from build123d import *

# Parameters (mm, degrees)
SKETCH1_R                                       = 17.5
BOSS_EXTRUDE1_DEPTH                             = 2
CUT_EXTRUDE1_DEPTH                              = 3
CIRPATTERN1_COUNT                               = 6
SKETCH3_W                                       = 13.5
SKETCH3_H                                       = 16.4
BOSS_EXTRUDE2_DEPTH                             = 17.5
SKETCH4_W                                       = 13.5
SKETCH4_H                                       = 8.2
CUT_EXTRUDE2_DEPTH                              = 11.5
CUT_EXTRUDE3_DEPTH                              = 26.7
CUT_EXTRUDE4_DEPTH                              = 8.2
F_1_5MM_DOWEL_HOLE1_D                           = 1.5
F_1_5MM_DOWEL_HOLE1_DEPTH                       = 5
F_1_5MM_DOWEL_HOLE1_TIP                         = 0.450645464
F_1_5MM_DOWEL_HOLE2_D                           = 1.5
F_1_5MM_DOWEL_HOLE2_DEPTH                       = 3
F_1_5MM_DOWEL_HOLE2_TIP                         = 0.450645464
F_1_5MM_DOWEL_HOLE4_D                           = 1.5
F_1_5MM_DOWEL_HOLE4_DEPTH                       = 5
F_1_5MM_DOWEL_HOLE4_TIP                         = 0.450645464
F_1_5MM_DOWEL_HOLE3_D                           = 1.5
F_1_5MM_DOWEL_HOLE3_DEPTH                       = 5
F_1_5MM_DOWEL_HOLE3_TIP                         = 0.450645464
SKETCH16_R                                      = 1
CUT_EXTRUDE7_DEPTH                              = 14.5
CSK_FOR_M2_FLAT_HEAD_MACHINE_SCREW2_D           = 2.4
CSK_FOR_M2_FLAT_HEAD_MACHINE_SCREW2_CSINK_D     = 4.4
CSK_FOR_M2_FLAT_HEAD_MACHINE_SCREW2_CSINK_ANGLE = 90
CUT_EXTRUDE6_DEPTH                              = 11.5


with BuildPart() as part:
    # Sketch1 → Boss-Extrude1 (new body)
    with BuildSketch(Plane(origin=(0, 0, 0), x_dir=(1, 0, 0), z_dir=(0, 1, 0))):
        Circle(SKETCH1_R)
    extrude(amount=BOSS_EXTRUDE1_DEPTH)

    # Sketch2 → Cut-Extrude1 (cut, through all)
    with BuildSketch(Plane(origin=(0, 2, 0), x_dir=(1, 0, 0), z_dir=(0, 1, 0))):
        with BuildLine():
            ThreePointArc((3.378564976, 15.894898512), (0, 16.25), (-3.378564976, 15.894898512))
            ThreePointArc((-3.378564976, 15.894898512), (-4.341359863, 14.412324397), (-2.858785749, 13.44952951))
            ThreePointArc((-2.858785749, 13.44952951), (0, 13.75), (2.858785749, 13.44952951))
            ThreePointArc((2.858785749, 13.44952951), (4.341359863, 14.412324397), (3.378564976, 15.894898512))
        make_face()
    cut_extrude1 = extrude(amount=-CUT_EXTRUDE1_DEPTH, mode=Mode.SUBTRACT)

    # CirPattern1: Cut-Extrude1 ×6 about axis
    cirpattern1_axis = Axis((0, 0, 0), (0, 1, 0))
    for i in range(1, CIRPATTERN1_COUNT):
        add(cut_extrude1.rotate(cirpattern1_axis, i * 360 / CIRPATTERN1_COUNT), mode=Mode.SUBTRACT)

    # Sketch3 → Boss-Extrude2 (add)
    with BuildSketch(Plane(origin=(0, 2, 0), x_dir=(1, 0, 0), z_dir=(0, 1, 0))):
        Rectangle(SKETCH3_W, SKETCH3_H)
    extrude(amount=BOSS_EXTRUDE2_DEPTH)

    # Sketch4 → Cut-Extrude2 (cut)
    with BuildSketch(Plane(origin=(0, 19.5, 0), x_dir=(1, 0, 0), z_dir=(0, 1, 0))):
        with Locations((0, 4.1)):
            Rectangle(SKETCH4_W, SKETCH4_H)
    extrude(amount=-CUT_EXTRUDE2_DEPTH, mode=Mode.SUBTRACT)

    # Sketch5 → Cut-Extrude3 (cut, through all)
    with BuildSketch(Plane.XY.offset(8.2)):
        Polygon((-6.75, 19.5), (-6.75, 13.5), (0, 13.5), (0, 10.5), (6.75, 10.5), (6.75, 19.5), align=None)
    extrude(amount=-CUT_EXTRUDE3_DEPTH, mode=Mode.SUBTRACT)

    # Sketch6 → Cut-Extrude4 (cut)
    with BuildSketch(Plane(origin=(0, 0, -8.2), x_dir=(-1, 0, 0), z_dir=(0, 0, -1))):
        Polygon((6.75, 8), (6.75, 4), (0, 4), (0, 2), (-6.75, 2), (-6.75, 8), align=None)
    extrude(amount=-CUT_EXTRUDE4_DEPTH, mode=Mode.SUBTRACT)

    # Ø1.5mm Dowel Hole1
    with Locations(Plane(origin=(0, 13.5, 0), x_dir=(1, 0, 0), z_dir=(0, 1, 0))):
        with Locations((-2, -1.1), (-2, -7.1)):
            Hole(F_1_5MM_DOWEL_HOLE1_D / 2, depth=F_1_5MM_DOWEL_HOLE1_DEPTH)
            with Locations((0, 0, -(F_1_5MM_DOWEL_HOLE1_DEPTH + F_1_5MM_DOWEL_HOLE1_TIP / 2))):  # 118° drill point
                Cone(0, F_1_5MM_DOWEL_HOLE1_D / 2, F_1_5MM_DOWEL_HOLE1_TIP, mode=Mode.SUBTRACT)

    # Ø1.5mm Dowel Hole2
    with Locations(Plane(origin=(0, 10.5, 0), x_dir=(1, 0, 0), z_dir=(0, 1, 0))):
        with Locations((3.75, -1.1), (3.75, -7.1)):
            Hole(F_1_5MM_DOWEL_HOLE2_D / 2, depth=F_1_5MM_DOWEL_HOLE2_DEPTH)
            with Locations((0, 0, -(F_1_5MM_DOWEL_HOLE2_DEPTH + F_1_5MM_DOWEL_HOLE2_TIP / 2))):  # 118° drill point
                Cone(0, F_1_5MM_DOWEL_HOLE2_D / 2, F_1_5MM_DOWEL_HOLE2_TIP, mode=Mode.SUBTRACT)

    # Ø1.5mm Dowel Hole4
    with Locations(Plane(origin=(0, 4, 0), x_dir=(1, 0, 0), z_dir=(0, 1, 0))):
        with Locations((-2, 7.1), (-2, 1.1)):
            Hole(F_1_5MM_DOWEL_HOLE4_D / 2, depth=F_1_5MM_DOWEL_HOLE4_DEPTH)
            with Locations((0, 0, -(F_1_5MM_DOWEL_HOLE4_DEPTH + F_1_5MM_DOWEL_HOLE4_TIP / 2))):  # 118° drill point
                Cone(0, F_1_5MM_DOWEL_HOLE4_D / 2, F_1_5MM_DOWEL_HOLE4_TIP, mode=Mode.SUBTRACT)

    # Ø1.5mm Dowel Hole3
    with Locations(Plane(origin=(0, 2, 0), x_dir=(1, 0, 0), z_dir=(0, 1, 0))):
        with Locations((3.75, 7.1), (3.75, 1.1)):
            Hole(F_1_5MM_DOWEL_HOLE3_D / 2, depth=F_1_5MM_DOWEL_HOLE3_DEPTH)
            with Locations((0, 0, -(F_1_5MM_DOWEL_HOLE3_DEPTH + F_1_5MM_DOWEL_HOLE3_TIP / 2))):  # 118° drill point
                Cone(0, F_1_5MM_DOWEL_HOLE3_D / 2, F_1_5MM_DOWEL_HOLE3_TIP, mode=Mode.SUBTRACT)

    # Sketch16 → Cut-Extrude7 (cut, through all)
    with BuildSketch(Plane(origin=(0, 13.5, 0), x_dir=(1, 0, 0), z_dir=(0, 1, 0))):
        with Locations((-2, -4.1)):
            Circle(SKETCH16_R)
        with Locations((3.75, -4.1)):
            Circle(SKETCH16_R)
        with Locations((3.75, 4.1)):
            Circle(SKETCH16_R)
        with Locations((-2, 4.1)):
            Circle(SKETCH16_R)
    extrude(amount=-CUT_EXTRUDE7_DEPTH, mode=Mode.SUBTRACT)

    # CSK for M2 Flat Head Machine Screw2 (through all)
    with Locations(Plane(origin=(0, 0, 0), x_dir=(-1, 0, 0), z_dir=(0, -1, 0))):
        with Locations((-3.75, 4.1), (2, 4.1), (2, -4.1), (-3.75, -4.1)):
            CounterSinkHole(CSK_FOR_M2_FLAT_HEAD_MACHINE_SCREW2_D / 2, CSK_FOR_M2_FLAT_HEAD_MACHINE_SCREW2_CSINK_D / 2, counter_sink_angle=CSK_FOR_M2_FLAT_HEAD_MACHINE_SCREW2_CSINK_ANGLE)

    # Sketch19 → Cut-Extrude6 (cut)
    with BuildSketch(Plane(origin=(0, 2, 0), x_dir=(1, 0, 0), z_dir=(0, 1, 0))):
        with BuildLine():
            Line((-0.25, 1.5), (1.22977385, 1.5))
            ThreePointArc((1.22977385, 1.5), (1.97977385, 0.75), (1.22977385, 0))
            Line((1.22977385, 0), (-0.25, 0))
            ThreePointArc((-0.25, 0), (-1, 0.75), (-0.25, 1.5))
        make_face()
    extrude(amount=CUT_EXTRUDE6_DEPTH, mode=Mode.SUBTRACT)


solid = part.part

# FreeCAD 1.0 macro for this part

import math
import FreeCAD as App
import Part
import Sketcher

V = App.Vector
Q = App.Units.Quantity


def add_polygon(sketch, points):
    """Adds a closed chain of lines whose ends are joined by coincident constraints."""
    first, n = sketch.GeometryCount, len(points)
    for a, b in zip(points, points[1:] + points[:1]):
        sketch.addGeometry(Part.LineSegment(App.Vector(*a, 0), App.Vector(*b, 0)), False)
    for i in range(n):
        sketch.addConstraint(Sketcher.Constraint("Coincident", first + i, 2, first + (i + 1) % n, 1))

doc = App.newDocument("Part")
body = doc.addObject("PartDesign::Body", "Body")

# Sketch on XZ plane
sketch1 = body.newObject("Sketcher::SketchObject", "Sketch")
sketch1.AttachmentSupport = (doc.getObject("XZ_Plane"), [""])
sketch1.MapMode = "FlatFace"
sketch1.addGeometry(Part.Circle(V(0, 0, 0), V(0, 0, 1), 17.5), False)
sketch1.addConstraint(Sketcher.Constraint("Coincident", 0, 3, -1, 1))
sketch1.addConstraint(Sketcher.Constraint("Diameter", 0, Q("35 mm")))
pad1 = body.newObject("PartDesign::Pad", "Pad")
pad1.Profile = sketch1
pad1.Length = 2
pad1.Reversed = True

# Sketch on XZ plane
sketch2 = body.newObject("Sketcher::SketchObject", "Sketch001")
sketch2.AttachmentSupport = (doc.getObject("XZ_Plane"), [""])
sketch2.MapMode = "FlatFace"
sketch2.AttachmentOffset = App.Placement(V(0, 0, -2), App.Rotation())
sketch2.addGeometry(Part.ArcOfCircle(Part.Circle(V(0, 0, 0), V(0, 0, 1), 16.25), math.radians(-102), math.radians(-78)), False)
sketch2.addGeometry(Part.ArcOfCircle(Part.Circle(V(-3.118675, -14.672214, 0), V(0, 0, 1), 1.25), math.radians(78), math.radians(258)), False)
sketch2.addGeometry(Part.ArcOfCircle(Part.Circle(V(0, 0, 0), V(0, 0, 1), 13.75), math.radians(-102), math.radians(-78)), False)
sketch2.addGeometry(Part.ArcOfCircle(Part.Circle(V(3.118675, -14.672214, 0), V(0, 0, 1), 1.25), math.radians(-78), math.radians(102)), False)
sketch2.addConstraint(Sketcher.Constraint("Tangent", 0, 1, 1, 2))
sketch2.addConstraint(Sketcher.Constraint("Tangent", 1, 1, 2, 1))
sketch2.addConstraint(Sketcher.Constraint("Tangent", 2, 2, 3, 2))
sketch2.addConstraint(Sketcher.Constraint("Tangent", 3, 1, 0, 2))
sketch2.addConstraint(Sketcher.Constraint("Coincident", 0, 3, -1, 1))
sketch2.addConstraint(Sketcher.Constraint("Coincident", 2, 3, -1, 1))
sketch2.addConstraint(Sketcher.Constraint("Horizontal", 1, 3, 3, 3))
sketch2.addConstraint(Sketcher.Constraint("Radius", 0, Q("16.25 mm")))
sketch2.addConstraint(Sketcher.Constraint("Radius", 1, Q("1.25 mm")))
sketch2.addConstraint(Sketcher.Constraint("DistanceY", 0, 1, -1, 1, Q("15.894899 mm")))
pocket1 = body.newObject("PartDesign::Pocket", "Pocket")
pocket1.Profile = sketch2
pocket1.Type = "ThroughAll"
pocket1.Reversed = True
doc.recompute()

polarpattern = body.newObject("PartDesign::PolarPattern", "PolarPattern")
polarpattern.Originals = [pocket1]
polarpattern.Axis = (doc.getObject("Y_Axis"), [""])
polarpattern.Angle = 360
polarpattern.Occurrences = 6
body.Tip = polarpattern

# Sketch on XZ plane
sketch3 = body.newObject("Sketcher::SketchObject", "Sketch002")
sketch3.AttachmentSupport = (doc.getObject("XZ_Plane"), [""])
sketch3.MapMode = "FlatFace"
sketch3.AttachmentOffset = App.Placement(V(0, 0, -2), App.Rotation())
add_polygon(sketch3, [(-6.75, -8.2), (-6.75, 8.2), (6.75, 8.2), (6.75, -8.2)])  # lines 0-3
sketch3.addConstraint(Sketcher.Constraint("Vertical", 0))
sketch3.addConstraint(Sketcher.Constraint("Horizontal", 1))
sketch3.addConstraint(Sketcher.Constraint("Vertical", 2))
sketch3.addConstraint(Sketcher.Constraint("Horizontal", 3))
sketch3.addConstraint(Sketcher.Constraint("Symmetric", 0, 2, 2, 2, -1, 1))
sketch3.addConstraint(Sketcher.Constraint("DistanceX", 1, 1, 1, 2, Q("13.5 mm")))
sketch3.addConstraint(Sketcher.Constraint("DistanceY", 0, 1, 0, 2, Q("16.4 mm")))
pad2 = body.newObject("PartDesign::Pad", "Pad001")
pad2.Profile = sketch3
pad2.Length = 17.5
pad2.Reversed = True

# Sketch on XZ plane
sketch4 = body.newObject("Sketcher::SketchObject", "Sketch003")
sketch4.AttachmentSupport = (doc.getObject("XZ_Plane"), [""])
sketch4.MapMode = "FlatFace"
sketch4.AttachmentOffset = App.Placement(V(0, 0, -19.5), App.Rotation())
add_polygon(sketch4, [(-6.75, -8.2), (-6.75, 0), (6.75, 0), (6.75, -8.2)])  # lines 0-3
sketch4.addConstraint(Sketcher.Constraint("Vertical", 0))
sketch4.addConstraint(Sketcher.Constraint("Horizontal", 1))
sketch4.addConstraint(Sketcher.Constraint("Vertical", 2))
sketch4.addConstraint(Sketcher.Constraint("Horizontal", 3))
sketch4.addConstraint(Sketcher.Constraint("Symmetric", 0, 2, 1, 2, -1, 1))
sketch4.addConstraint(Sketcher.Constraint("DistanceX", 1, 1, 1, 2, Q("13.5 mm")))
sketch4.addConstraint(Sketcher.Constraint("DistanceY", 0, 1, 0, 2, Q("8.2 mm")))
pocket2 = body.newObject("PartDesign::Pocket", "Pocket001")
pocket2.Profile = sketch4
pocket2.Length = 11.5
pocket2.Reversed = True

# Sketch on XY plane
sketch5 = body.newObject("Sketcher::SketchObject", "Sketch004")
sketch5.AttachmentSupport = (doc.getObject("XY_Plane"), [""])
sketch5.MapMode = "FlatFace"
sketch5.AttachmentOffset = App.Placement(V(0, 0, 8.2), App.Rotation())
add_polygon(sketch5, [(-6.75, 19.5), (-6.75, 13.5), (0, 13.5), (0, 10.5), (6.75, 10.5), (6.75, 19.5)])  # lines 0-5
sketch5.addConstraint(Sketcher.Constraint("Vertical", 0))
sketch5.addConstraint(Sketcher.Constraint("Horizontal", 1))
sketch5.addConstraint(Sketcher.Constraint("Vertical", 2))
sketch5.addConstraint(Sketcher.Constraint("Horizontal", 3))
sketch5.addConstraint(Sketcher.Constraint("Vertical", 4))
sketch5.addConstraint(Sketcher.Constraint("Horizontal", 5))
sketch5.addConstraint(Sketcher.Constraint("PointOnObject", 1, 2, -2))
sketch5.addConstraint(Sketcher.Constraint("Equal", 1, 3))
sketch5.addConstraint(Sketcher.Constraint("DistanceY", 0, 2, 0, 1, Q("6 mm")))
sketch5.addConstraint(Sketcher.Constraint("DistanceY", 2, 2, 2, 1, Q("3 mm")))
sketch5.addConstraint(Sketcher.Constraint("DistanceX", 5, 2, 5, 1, Q("13.5 mm")))
sketch5.addConstraint(Sketcher.Constraint("DistanceY", -1, 1, 0, 2, Q("13.5 mm")))
pocket3 = body.newObject("PartDesign::Pocket", "Pocket002")
pocket3.Profile = sketch5
pocket3.Type = "ThroughAll"

# Sketch on XY plane
sketch6 = body.newObject("Sketcher::SketchObject", "Sketch005")
sketch6.AttachmentSupport = (doc.getObject("XY_Plane"), [""])
sketch6.MapMode = "FlatFace"
sketch6.AttachmentOffset = App.Placement(V(0, 0, -8.2), App.Rotation())
add_polygon(sketch6, [(-6.75, 4), (-6.75, 8), (6.75, 8), (6.75, 2), (0, 2), (0, 4)])  # lines 0-5
sketch6.addConstraint(Sketcher.Constraint("Vertical", 0))
sketch6.addConstraint(Sketcher.Constraint("Horizontal", 1))
sketch6.addConstraint(Sketcher.Constraint("Vertical", 2))
sketch6.addConstraint(Sketcher.Constraint("Horizontal", 3))
sketch6.addConstraint(Sketcher.Constraint("Vertical", 4))
sketch6.addConstraint(Sketcher.Constraint("Horizontal", 5))
sketch6.addConstraint(Sketcher.Constraint("PointOnObject", 3, 2, -2))
sketch6.addConstraint(Sketcher.Constraint("Equal", 3, 5))
sketch6.addConstraint(Sketcher.Constraint("DistanceY", 0, 1, 0, 2, Q("4 mm")))
sketch6.addConstraint(Sketcher.Constraint("DistanceY", 2, 2, 2, 1, Q("6 mm")))
sketch6.addConstraint(Sketcher.Constraint("DistanceX", 1, 1, 1, 2, Q("13.5 mm")))
sketch6.addConstraint(Sketcher.Constraint("DistanceY", -1, 1, 0, 2, Q("8 mm")))
pocket4 = body.newObject("PartDesign::Pocket", "Pocket003")
pocket4.Profile = sketch6
pocket4.Length = 8.2
pocket4.Reversed = True

# Sketch on XZ plane
sketch7 = body.newObject("Sketcher::SketchObject", "Sketch006")
sketch7.AttachmentSupport = (doc.getObject("XZ_Plane"), [""])
sketch7.MapMode = "FlatFace"
sketch7.AttachmentOffset = App.Placement(V(0, 0, -13.5), App.Rotation())
sketch7.addGeometry(Part.Circle(V(-2, 1.1, 0), V(0, 0, 1), 0.75), False)
sketch7.addGeometry(Part.Circle(V(-2, 7.1, 0), V(0, 0, 1), 0.75), False)
sketch7.addConstraint(Sketcher.Constraint("Equal", 0, 1))
sketch7.addConstraint(Sketcher.Constraint("Vertical", 0, 3, 1, 3))
sketch7.addConstraint(Sketcher.Constraint("Diameter", 0, Q("1.5 mm")))
sketch7.addConstraint(Sketcher.Constraint("DistanceX", 0, 3, -1, 1, Q("2 mm")))
sketch7.addConstraint(Sketcher.Constraint("DistanceY", 0, 3, 1, 3, Q("6 mm")))
sketch7.addConstraint(Sketcher.Constraint("DistanceY", -1, 1, 0, 3, Q("1.1 mm")))
doc.recompute()
hole = body.newObject("PartDesign::Hole", "Hole")
hole.Profile = sketch7
hole.ThreadType = "None"
hole.Diameter = 1.5
hole.DepthType = "Dimension"
hole.Depth = 5
hole.DrillPoint = "Angled"
hole.DrillPointAngle = 118
hole.Reversed = True

# Sketch on XZ plane
sketch8 = body.newObject("Sketcher::SketchObject", "Sketch007")
sketch8.AttachmentSupport = (doc.getObject("XZ_Plane"), [""])
sketch8.MapMode = "FlatFace"
sketch8.AttachmentOffset = App.Placement(V(0, 0, -10.5), App.Rotation())
sketch8.addGeometry(Part.Circle(V(3.75, 1.1, 0), V(0, 0, 1), 0.75), False)
sketch8.addGeometry(Part.Circle(V(3.75, 7.1, 0), V(0, 0, 1), 0.75), False)
sketch8.addConstraint(Sketcher.Constraint("Equal", 0, 1))
sketch8.addConstraint(Sketcher.Constraint("Vertical", 0, 3, 1, 3))
sketch8.addConstraint(Sketcher.Constraint("Diameter", 0, Q("1.5 mm")))
sketch8.addConstraint(Sketcher.Constraint("DistanceY", 0, 3, 1, 3, Q("6 mm")))
sketch8.addConstraint(Sketcher.Constraint("DistanceY", -1, 1, 0, 3, Q("1.1 mm")))
sketch8.addConstraint(Sketcher.Constraint("DistanceX", -1, 1, 0, 3, Q("3.75 mm")))
doc.recompute()
hole2 = body.newObject("PartDesign::Hole", "Hole001")
hole2.Profile = sketch8
hole2.ThreadType = "None"
hole2.Diameter = 1.5
hole2.DepthType = "Dimension"
hole2.Depth = 3
hole2.DrillPoint = "Angled"
hole2.DrillPointAngle = 118
hole2.Reversed = True

# Sketch on XZ plane
sketch9 = body.newObject("Sketcher::SketchObject", "Sketch008")
sketch9.AttachmentSupport = (doc.getObject("XZ_Plane"), [""])
sketch9.MapMode = "FlatFace"
sketch9.AttachmentOffset = App.Placement(V(0, 0, -4), App.Rotation())
sketch9.addGeometry(Part.Circle(V(-2, -7.1, 0), V(0, 0, 1), 0.75), False)
sketch9.addGeometry(Part.Circle(V(-2, -1.1, 0), V(0, 0, 1), 0.75), False)
sketch9.addConstraint(Sketcher.Constraint("Equal", 0, 1))
sketch9.addConstraint(Sketcher.Constraint("Vertical", 0, 3, 1, 3))
sketch9.addConstraint(Sketcher.Constraint("Diameter", 0, Q("1.5 mm")))
sketch9.addConstraint(Sketcher.Constraint("DistanceX", 0, 3, -1, 1, Q("2 mm")))
sketch9.addConstraint(Sketcher.Constraint("DistanceY", 0, 3, 1, 3, Q("6 mm")))
sketch9.addConstraint(Sketcher.Constraint("DistanceY", 0, 3, -1, 1, Q("7.1 mm")))
doc.recompute()
hole3 = body.newObject("PartDesign::Hole", "Hole002")
hole3.Profile = sketch9
hole3.ThreadType = "None"
hole3.Diameter = 1.5
hole3.DepthType = "Dimension"
hole3.Depth = 5
hole3.DrillPoint = "Angled"
hole3.DrillPointAngle = 118
hole3.Reversed = True

# Sketch on XZ plane
sketch10 = body.newObject("Sketcher::SketchObject", "Sketch009")
sketch10.AttachmentSupport = (doc.getObject("XZ_Plane"), [""])
sketch10.MapMode = "FlatFace"
sketch10.AttachmentOffset = App.Placement(V(0, 0, -2), App.Rotation())
sketch10.addGeometry(Part.Circle(V(3.75, -7.1, 0), V(0, 0, 1), 0.75), False)
sketch10.addGeometry(Part.Circle(V(3.75, -1.1, 0), V(0, 0, 1), 0.75), False)
sketch10.addConstraint(Sketcher.Constraint("Equal", 0, 1))
sketch10.addConstraint(Sketcher.Constraint("Vertical", 0, 3, 1, 3))
sketch10.addConstraint(Sketcher.Constraint("Diameter", 0, Q("1.5 mm")))
sketch10.addConstraint(Sketcher.Constraint("DistanceY", 0, 3, 1, 3, Q("6 mm")))
sketch10.addConstraint(Sketcher.Constraint("DistanceY", 0, 3, -1, 1, Q("7.1 mm")))
sketch10.addConstraint(Sketcher.Constraint("DistanceX", -1, 1, 0, 3, Q("3.75 mm")))
doc.recompute()
hole4 = body.newObject("PartDesign::Hole", "Hole003")
hole4.Profile = sketch10
hole4.ThreadType = "None"
hole4.Diameter = 1.5
hole4.DepthType = "Dimension"
hole4.Depth = 5
hole4.DrillPoint = "Angled"
hole4.DrillPointAngle = 118
hole4.Reversed = True

# Sketch on XZ plane
sketch11 = body.newObject("Sketcher::SketchObject", "Sketch010")
sketch11.AttachmentSupport = (doc.getObject("XZ_Plane"), [""])
sketch11.MapMode = "FlatFace"
sketch11.AttachmentOffset = App.Placement(V(0, 0, -13.5), App.Rotation())
sketch11.addGeometry(Part.Circle(V(-2, 4.1, 0), V(0, 0, 1), 1), False)
sketch11.addGeometry(Part.Circle(V(3.75, 4.1, 0), V(0, 0, 1), 1), False)
sketch11.addGeometry(Part.Circle(V(3.75, -4.1, 0), V(0, 0, 1), 1), False)
sketch11.addGeometry(Part.Circle(V(-2, -4.1, 0), V(0, 0, 1), 1), False)
sketch11.addConstraint(Sketcher.Constraint("Equal", 0, 1))
sketch11.addConstraint(Sketcher.Constraint("Equal", 1, 2))
sketch11.addConstraint(Sketcher.Constraint("Equal", 2, 3))
sketch11.addConstraint(Sketcher.Constraint("Symmetric", 1, 3, 2, 3, -1))
sketch11.addConstraint(Sketcher.Constraint("Symmetric", 0, 3, 3, 3, -1))
sketch11.addConstraint(Sketcher.Constraint("Horizontal", 0, 3, 1, 3))
sketch11.addConstraint(Sketcher.Constraint("Diameter", 0, Q("2 mm")))
sketch11.addConstraint(Sketcher.Constraint("DistanceX", 0, 3, -1, 1, Q("2 mm")))
sketch11.addConstraint(Sketcher.Constraint("DistanceY", -1, 1, 0, 3, Q("4.1 mm")))
sketch11.addConstraint(Sketcher.Constraint("DistanceX", -1, 1, 1, 3, Q("3.75 mm")))
pocket5 = body.newObject("PartDesign::Pocket", "Pocket004")
pocket5.Profile = sketch11
pocket5.Type = "ThroughAll"
pocket5.Reversed = True

# Sketch on XZ plane
sketch12 = body.newObject("Sketcher::SketchObject", "Sketch011")
sketch12.AttachmentSupport = (doc.getObject("XZ_Plane"), [""])
sketch12.MapMode = "FlatFace"
sketch12.addGeometry(Part.Circle(V(3.75, -4.1, 0), V(0, 0, 1), 1.2), False)
sketch12.addGeometry(Part.Circle(V(-2, -4.1, 0), V(0, 0, 1), 1.2), False)
sketch12.addGeometry(Part.Circle(V(-2, 4.1, 0), V(0, 0, 1), 1.2), False)
sketch12.addGeometry(Part.Circle(V(3.75, 4.1, 0), V(0, 0, 1), 1.2), False)
sketch12.addConstraint(Sketcher.Constraint("Equal", 0, 1))
sketch12.addConstraint(Sketcher.Constraint("Equal", 1, 2))
sketch12.addConstraint(Sketcher.Constraint("Equal", 2, 3))
sketch12.addConstraint(Sketcher.Constraint("Symmetric", 1, 3, 2, 3, -1))
sketch12.addConstraint(Sketcher.Constraint("Symmetric", 0, 3, 3, 3, -1))
sketch12.addConstraint(Sketcher.Constraint("Horizontal", 0, 3, 1, 3))
sketch12.addConstraint(Sketcher.Constraint("Diameter", 0, Q("2.4 mm")))
sketch12.addConstraint(Sketcher.Constraint("DistanceX", 1, 3, -1, 1, Q("2 mm")))
sketch12.addConstraint(Sketcher.Constraint("DistanceY", 0, 3, -1, 1, Q("4.1 mm")))
sketch12.addConstraint(Sketcher.Constraint("DistanceX", -1, 1, 0, 3, Q("3.75 mm")))
doc.recompute()
hole5 = body.newObject("PartDesign::Hole", "Hole004")
hole5.Profile = sketch12
hole5.ThreadType = "None"
hole5.Diameter = 2.4
hole5.DepthType = "ThroughAll"
hole5.HoleCutType = "Countersink"
hole5.HoleCutDiameter = 4.4
hole5.HoleCutCountersinkAngle = 90

# Sketch on XZ plane
sketch13 = body.newObject("Sketcher::SketchObject", "Sketch012")
sketch13.AttachmentSupport = (doc.getObject("XZ_Plane"), [""])
sketch13.MapMode = "FlatFace"
sketch13.AttachmentOffset = App.Placement(V(0, 0, -2), App.Rotation())
sketch13.addGeometry(Part.LineSegment(V(1.229774, -1.5, 0), V(-0.25, -1.5, 0)), False)
sketch13.addGeometry(Part.ArcOfCircle(Part.Circle(V(-0.25, -0.75, 0), V(0, 0, 1), 0.75), math.radians(90), math.radians(270)), False)
sketch13.addGeometry(Part.LineSegment(V(-0.25, 0, 0), V(1.229774, 0, 0)), False)
sketch13.addGeometry(Part.ArcOfCircle(Part.Circle(V(1.229774, -0.75, 0), V(0, 0, 1), 0.75), math.radians(-90), math.radians(90)), False)
sketch13.addConstraint(Sketcher.Constraint("Tangent", 0, 2, 1, 2))
sketch13.addConstraint(Sketcher.Constraint("Tangent", 1, 1, 2, 1))
sketch13.addConstraint(Sketcher.Constraint("Tangent", 2, 2, 3, 2))
sketch13.addConstraint(Sketcher.Constraint("Tangent", 3, 1, 0, 1))
sketch13.addConstraint(Sketcher.Constraint("Horizontal", 0))
sketch13.addConstraint(Sketcher.Constraint("Horizontal", 2))
sketch13.addConstraint(Sketcher.Constraint("PointOnObject", 1, 1, -1))
sketch13.addConstraint(Sketcher.Constraint("Radius", 1, Q("0.75 mm")))
sketch13.addConstraint(Sketcher.Constraint("DistanceX", 1, 3, -1, 1, Q("0.25 mm")))
sketch13.addConstraint(Sketcher.Constraint("DistanceX", 0, 2, 0, 1, Q("1.479774 mm")))
pocket6 = body.newObject("PartDesign::Pocket", "Pocket005")
pocket6.Profile = sketch13
pocket6.Length = 11.5

doc.recompute()
